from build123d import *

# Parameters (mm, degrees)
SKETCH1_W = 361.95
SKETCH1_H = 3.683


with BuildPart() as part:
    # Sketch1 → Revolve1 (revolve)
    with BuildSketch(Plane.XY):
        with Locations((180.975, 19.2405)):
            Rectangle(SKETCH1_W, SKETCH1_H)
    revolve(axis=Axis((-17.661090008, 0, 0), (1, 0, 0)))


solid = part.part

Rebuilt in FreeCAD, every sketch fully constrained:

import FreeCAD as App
import Part
import Sketcher
Q = App.Units.Quantity

doc = App.newDocument("Part")
body = doc.addObject("PartDesign::Body", "Body")

# Sketch on XY plane
sketch1 = body.newObject("Sketcher::SketchObject", "Sketch")
sketch1.AttachmentSupport = (doc.getObject("XY_Plane"), [""])
sketch1.MapMode = "FlatFace"
sketch1.addGeometry(Part.LineSegment(App.Vector(0, 21.1, 0), App.Vector(0, 17.4, 0)), False)
sketch1.addGeometry(Part.LineSegment(App.Vector(0, 17.4, 0), App.Vector(361.9, 17.4, 0)), False)
sketch1.addGeometry(Part.LineSegment(App.Vector(361.9, 17.4, 0), App.Vector(361.9, 21.1, 0)), False)
sketch1.addGeometry(Part.LineSegment(App.Vector(361.9, 21.1, 0), App.Vector(0, 21.1, 0)), False)
sketch1.addConstraint(Sketcher.Constraint("Coincident", 0, 2, 1, 1))
sketch1.addConstraint(Sketcher.Constraint("Coincident", 1, 2, 2, 1))
sketch1.addConstraint(Sketcher.Constraint("Coincident", 2, 2, 3, 1))
sketch1.addConstraint(Sketcher.Constraint("Coincident", 3, 2, 0, 1))
sketch1.addConstraint(Sketcher.Constraint("Vertical", 0))
sketch1.addConstraint(Sketcher.Constraint("Horizontal", 1))
sketch1.addConstraint(Sketcher.Constraint("Vertical", 2))
sketch1.addConstraint(Sketcher.Constraint("Horizontal", 3))
sketch1.addConstraint(Sketcher.Constraint("PointOnObject", 0, 2, -2))
sketch1.addConstraint(Sketcher.Constraint("DistanceX", 1, 1, 1, 2, Q("14.25 in")))
sketch1.addConstraint(Sketcher.Constraint("DistanceY", 0, 2, 0, 1, Q("0.145 in")))
sketch1.addConstraint(Sketcher.Constraint("DistanceY", -1, 1, 2, 2, Q("0.83 in")))
revolution = body.newObject("PartDesign::Revolution", "Revolution")
revolution.Profile = sketch1
revolution.ReferenceAxis = (sketch1, ["H_Axis"])
revolution.Angle = 360

doc.recompute()
